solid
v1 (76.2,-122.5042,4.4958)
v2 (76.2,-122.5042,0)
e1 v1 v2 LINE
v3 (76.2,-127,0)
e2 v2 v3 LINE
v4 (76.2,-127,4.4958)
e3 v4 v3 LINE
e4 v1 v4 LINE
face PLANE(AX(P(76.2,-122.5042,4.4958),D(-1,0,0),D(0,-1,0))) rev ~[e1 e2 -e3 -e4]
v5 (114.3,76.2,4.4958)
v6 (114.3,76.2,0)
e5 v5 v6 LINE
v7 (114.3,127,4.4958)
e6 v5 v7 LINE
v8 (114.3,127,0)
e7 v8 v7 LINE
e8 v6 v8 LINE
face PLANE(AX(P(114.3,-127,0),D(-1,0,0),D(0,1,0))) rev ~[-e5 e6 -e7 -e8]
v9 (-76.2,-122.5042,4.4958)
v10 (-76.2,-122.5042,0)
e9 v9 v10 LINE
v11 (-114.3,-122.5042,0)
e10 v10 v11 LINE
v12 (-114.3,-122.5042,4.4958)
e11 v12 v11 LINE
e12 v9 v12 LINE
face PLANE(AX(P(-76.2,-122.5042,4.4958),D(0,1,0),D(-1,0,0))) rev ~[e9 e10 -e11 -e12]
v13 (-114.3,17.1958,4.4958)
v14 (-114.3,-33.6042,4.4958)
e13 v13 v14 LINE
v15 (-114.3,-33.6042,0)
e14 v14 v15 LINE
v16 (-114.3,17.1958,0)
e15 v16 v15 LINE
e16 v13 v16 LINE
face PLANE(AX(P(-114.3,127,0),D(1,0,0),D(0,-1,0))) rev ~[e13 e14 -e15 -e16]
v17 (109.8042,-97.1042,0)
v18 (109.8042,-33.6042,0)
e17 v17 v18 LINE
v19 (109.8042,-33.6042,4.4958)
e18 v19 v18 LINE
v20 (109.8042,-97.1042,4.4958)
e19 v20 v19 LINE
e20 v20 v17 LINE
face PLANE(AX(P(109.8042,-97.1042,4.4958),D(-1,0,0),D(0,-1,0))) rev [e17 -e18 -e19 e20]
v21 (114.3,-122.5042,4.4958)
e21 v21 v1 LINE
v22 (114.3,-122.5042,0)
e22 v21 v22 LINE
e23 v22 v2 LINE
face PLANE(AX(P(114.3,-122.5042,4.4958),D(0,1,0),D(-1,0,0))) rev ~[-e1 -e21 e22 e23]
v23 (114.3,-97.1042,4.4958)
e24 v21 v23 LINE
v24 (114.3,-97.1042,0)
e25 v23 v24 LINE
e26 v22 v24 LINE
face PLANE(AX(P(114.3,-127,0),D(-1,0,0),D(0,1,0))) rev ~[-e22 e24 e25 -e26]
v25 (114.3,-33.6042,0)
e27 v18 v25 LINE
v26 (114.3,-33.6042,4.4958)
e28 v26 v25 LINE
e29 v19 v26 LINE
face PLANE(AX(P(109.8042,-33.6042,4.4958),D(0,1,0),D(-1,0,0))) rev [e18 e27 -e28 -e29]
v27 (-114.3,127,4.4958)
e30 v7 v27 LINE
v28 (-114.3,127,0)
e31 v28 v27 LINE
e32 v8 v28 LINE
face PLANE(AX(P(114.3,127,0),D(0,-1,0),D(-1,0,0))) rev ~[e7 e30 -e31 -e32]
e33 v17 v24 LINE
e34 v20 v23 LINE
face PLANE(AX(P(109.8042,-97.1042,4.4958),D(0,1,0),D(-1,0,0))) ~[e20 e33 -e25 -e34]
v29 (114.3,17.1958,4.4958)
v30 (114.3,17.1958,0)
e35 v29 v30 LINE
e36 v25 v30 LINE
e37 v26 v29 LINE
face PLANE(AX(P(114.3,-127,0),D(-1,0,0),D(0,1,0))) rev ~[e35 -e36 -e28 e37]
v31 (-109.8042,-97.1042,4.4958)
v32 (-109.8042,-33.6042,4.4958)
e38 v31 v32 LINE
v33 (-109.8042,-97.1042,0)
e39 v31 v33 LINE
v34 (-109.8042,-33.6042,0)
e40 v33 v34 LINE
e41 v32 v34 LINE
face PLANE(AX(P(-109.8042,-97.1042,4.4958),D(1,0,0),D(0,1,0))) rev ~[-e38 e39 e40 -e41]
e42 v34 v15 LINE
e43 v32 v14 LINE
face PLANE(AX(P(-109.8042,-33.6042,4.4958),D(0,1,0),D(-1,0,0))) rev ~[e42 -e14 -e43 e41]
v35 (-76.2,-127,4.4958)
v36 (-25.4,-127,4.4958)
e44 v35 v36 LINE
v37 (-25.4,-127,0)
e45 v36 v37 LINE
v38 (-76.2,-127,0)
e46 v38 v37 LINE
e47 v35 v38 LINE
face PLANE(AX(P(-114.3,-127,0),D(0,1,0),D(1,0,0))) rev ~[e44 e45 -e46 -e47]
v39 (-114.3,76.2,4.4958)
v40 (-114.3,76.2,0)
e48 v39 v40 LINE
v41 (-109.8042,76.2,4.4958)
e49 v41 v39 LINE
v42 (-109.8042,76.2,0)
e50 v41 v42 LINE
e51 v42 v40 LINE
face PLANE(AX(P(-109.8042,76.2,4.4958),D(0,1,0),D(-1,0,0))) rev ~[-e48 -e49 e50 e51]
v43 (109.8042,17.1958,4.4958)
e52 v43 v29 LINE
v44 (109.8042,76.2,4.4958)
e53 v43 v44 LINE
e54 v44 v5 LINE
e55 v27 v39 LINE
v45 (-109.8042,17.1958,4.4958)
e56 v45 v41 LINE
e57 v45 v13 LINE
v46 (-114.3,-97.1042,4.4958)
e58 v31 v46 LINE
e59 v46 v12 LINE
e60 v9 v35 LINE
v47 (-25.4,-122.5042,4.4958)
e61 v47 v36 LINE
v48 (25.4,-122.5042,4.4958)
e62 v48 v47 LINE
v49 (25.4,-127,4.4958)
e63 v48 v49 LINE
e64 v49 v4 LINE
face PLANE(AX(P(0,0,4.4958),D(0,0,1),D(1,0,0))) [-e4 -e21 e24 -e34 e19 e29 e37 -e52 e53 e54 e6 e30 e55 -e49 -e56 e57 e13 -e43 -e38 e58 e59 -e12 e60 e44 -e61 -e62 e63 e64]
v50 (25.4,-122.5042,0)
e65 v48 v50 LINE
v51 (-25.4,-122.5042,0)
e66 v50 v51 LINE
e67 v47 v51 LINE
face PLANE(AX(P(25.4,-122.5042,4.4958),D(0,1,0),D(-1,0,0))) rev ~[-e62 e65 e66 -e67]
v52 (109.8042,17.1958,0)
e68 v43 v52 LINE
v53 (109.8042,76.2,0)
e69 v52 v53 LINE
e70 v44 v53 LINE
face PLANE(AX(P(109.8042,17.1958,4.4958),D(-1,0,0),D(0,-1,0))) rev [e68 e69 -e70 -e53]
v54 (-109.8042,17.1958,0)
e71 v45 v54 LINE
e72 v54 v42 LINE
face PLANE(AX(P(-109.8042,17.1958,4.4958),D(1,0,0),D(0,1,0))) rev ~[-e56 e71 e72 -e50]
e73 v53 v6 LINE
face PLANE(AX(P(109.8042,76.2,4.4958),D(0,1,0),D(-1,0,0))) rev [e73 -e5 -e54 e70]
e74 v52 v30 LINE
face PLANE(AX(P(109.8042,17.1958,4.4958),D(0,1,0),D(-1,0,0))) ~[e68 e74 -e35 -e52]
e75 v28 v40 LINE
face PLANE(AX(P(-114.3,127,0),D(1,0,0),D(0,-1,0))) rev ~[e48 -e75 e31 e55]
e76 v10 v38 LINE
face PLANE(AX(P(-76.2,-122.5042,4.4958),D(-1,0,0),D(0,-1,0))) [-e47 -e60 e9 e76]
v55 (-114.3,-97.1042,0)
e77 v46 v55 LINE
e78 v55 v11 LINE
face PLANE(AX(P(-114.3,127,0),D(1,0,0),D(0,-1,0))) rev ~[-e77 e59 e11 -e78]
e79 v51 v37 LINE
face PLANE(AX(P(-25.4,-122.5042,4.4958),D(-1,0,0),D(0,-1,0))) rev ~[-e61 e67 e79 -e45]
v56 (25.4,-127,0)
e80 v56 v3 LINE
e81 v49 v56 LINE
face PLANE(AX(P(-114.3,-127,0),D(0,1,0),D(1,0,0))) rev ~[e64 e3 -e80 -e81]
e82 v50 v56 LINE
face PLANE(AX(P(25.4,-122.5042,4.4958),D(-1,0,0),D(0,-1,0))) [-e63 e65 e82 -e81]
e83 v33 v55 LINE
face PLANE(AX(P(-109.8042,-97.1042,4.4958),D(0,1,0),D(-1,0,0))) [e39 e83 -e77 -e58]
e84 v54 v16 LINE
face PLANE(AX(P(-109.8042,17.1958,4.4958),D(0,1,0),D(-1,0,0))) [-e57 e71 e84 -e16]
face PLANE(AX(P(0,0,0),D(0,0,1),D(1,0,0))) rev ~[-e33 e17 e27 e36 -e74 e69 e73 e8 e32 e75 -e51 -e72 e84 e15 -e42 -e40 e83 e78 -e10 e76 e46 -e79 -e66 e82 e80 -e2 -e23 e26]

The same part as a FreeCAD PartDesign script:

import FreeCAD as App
import Part
import Sketcher
Q = App.Units.Quantity


def add_polygon(sketch, points):
    """Adds a closed chain of lines whose ends are joined by coincident constraints."""
    first, n = sketch.GeometryCount, len(points)
    for a, b in zip(points, points[1:] + points[:1]):
        sketch.addGeometry(Part.LineSegment(App.Vector(*a, 0), App.Vector(*b, 0)), False)
    for i in range(n):
        sketch.addConstraint(Sketcher.Constraint("Coincident", first + i, 2, first + (i + 1) % n, 1))

doc = App.newDocument("Part")
body = doc.addObject("PartDesign::Body", "Body")

sketch1 = doc.addObject("Sketcher::SketchObject", "Sketch")
body.addObject(sketch1)
sketch1.AttachmentSupport = (doc.XY_Plane, [""])
sketch1.MapMode = "FlatFace"
add_polygon(sketch1, [(-114, 127), (-114, -127), (114, -127), (114, 127)])
sketch1.addConstraint(Sketcher.Constraint("Vertical", 0))
sketch1.addConstraint(Sketcher.Constraint("Horizontal", 1))
sketch1.addConstraint(Sketcher.Constraint("Vertical", 2))
sketch1.addConstraint(Sketcher.Constraint("Horizontal", 3))
sketch1.addConstraint(Sketcher.Constraint("Symmetric", 0, 2, 2, 2, -1, 1))
sketch1.addConstraint(Sketcher.Constraint("DistanceX", 0, 2, -1, 1, Q("4.5 in")))
sketch1.addConstraint(Sketcher.Constraint("DistanceY", 0, 2, 0, 1, Q("10 in")))
pad1 = doc.addObject("PartDesign::Pad", "Pad")
body.addObject(pad1)
pad1.Profile = sketch1
pad1.Length = Q("0.177 in")

sketch2 = doc.addObject("Sketcher::SketchObject", "Sketch001")
body.addObject(sketch2)
sketch2.AttachmentSupport = (doc.XY_Plane, [""])
sketch2.MapMode = "FlatFace"
sketch2.AttachmentOffset = App.Placement(App.Vector(0, 0, 0.177 * 25.4), App.Rotation())
add_polygon(sketch2, [(-76.2, -127), (-76.2, -122.5), (-114.3, -122.5), (-114.3, -127)])
add_polygon(sketch2, [(25.4, -127), (25.4, -122.5), (-25.4, -122.5), (-25.4, -127)])
add_polygon(sketch2, [(114.3, -122.5), (76.2, -122.5), (76.2, -127), (114.3, -127)])
sketch2.addConstraint(Sketcher.Constraint("Vertical", 0))
sketch2.addConstraint(Sketcher.Constraint("Horizontal", 1))
sketch2.addConstraint(Sketcher.Constraint("Vertical", 2))
sketch2.addConstraint(Sketcher.Constraint("Horizontal", 3))
sketch2.addConstraint(Sketcher.Constraint("Vertical", 4))
sketch2.addConstraint(Sketcher.Constraint("Horizontal", 5))
sketch2.addConstraint(Sketcher.Constraint("Vertical", 6))
sketch2.addConstraint(Sketcher.Constraint("Horizontal", 7))
sketch2.addConstraint(Sketcher.Constraint("Horizontal", 8))
sketch2.addConstraint(Sketcher.Constraint("Vertical", 9))
sketch2.addConstraint(Sketcher.Constraint("Horizontal", 10))
sketch2.addConstraint(Sketcher.Constraint("Vertical", 11))
sketch2.addConstraint(Sketcher.Constraint("Symmetric", 0, 2, 8, 2, -2))
sketch2.addConstraint(Sketcher.Constraint("Symmetric", 2, 2, 10, 2, -2))
sketch2.addConstraint(Sketcher.Constraint("Horizontal", 1, 2, 4, 2))
sketch2.addConstraint(Sketcher.Constraint("Horizontal", 3, 2, 6, 2))
sketch2.addConstraint(Sketcher.Constraint("DistanceX", 5, 2, 5, 1, Q("2 in")))
sketch2.addConstraint(Sketcher.Constraint("DistanceX", 1, 2, 1, 1, Q("1.5 in")))
sketch2.addConstraint(Sketcher.Constraint("DistanceX", 0, 2, -1, 1, Q("3 in")))
sketch2.addConstraint(Sketcher.Constraint("DistanceY", 2, 2, -1, 1, Q("5 in")))
sketch2.addConstraint(Sketcher.Constraint("DistanceX", -1, 1, 4, 2, Q("1 in")))
sketch2.addConstraint(Sketcher.Constraint("DistanceY", 0, 1, 0, 2, Q("0.177 in")))
pocket1 = doc.addObject("PartDesign::Pocket", "Pocket")
body.addObject(pocket1)
pocket1.Profile = sketch2
pocket1.Type = "ThroughAll"

sketch3 = doc.addObject("Sketcher::SketchObject", "Sketch002")
body.addObject(sketch3)
sketch3.AttachmentSupport = (doc.XY_Plane, [""])
sketch3.MapMode = "FlatFace"
sketch3.AttachmentOffset = App.Placement(App.Vector(0, 0, 0.177 * 25.4), App.Rotation())
add_polygon(sketch3, [(-114.3, -97.1), (-109.8, -97.1), (-109.8, -33.6), (-114.3, -33.6)])
add_polygon(sketch3, [(-109.8, 76.2), (-114.3, 76.2), (-114.3, 17.2), (-109.8, 17.2)])
sketch3.addConstraint(Sketcher.Constraint("Horizontal", 0))
sketch3.addConstraint(Sketcher.Constraint("Vertical", 1))
sketch3.addConstraint(Sketcher.Constraint("Horizontal", 2))
sketch3.addConstraint(Sketcher.Constraint("Vertical", 3))
sketch3.addConstraint(Sketcher.Constraint("Horizontal", 4))
sketch3.addConstraint(Sketcher.Constraint("Vertical", 5))
sketch3.addConstraint(Sketcher.Constraint("Horizontal", 6))
sketch3.addConstraint(Sketcher.Constraint("Vertical", 7))
sketch3.addConstraint(Sketcher.Constraint("Vertical", 3, 2, 4, 2))
sketch3.addConstraint(Sketcher.Constraint("Vertical", 1, 2, 6, 2))
sketch3.addConstraint(Sketcher.Constraint("DistanceY", 1, 1, 1, 2, Q("2.5 in")))
sketch3.addConstraint(Sketcher.Constraint("DistanceY", -1, 1, 4, 2, Q("3 in")))
sketch3.addConstraint(Sketcher.Constraint("DistanceY", 2, 2, 5, 2, Q("2 in")))
sketch3.addConstraint(Sketcher.Constraint("DistanceX", 2, 2, -1, 1, Q("4.5 in")))
sketch3.addConstraint(Sketcher.Constraint("DistanceX", 0, 1, 0, 2, Q("0.177 in")))
sketch3.addConstraint(Sketcher.Constraint("DistanceY", 5, 2, 5, 1, Q("2.323 in")))
pocket2 = doc.addObject("PartDesign::Pocket", "Pocket001")
body.addObject(pocket2)
pocket2.Profile = sketch3
pocket2.Type = "ThroughAll"
doc.recompute()

mirrored = doc.addObject("PartDesign::Mirrored", "Mirrored")
body.addObject(mirrored)
mirrored.Originals = [pocket2]
mirrored.MirrorPlane = (doc.YZ_Plane, [""])
body.Tip = mirrored

doc.recompute()
